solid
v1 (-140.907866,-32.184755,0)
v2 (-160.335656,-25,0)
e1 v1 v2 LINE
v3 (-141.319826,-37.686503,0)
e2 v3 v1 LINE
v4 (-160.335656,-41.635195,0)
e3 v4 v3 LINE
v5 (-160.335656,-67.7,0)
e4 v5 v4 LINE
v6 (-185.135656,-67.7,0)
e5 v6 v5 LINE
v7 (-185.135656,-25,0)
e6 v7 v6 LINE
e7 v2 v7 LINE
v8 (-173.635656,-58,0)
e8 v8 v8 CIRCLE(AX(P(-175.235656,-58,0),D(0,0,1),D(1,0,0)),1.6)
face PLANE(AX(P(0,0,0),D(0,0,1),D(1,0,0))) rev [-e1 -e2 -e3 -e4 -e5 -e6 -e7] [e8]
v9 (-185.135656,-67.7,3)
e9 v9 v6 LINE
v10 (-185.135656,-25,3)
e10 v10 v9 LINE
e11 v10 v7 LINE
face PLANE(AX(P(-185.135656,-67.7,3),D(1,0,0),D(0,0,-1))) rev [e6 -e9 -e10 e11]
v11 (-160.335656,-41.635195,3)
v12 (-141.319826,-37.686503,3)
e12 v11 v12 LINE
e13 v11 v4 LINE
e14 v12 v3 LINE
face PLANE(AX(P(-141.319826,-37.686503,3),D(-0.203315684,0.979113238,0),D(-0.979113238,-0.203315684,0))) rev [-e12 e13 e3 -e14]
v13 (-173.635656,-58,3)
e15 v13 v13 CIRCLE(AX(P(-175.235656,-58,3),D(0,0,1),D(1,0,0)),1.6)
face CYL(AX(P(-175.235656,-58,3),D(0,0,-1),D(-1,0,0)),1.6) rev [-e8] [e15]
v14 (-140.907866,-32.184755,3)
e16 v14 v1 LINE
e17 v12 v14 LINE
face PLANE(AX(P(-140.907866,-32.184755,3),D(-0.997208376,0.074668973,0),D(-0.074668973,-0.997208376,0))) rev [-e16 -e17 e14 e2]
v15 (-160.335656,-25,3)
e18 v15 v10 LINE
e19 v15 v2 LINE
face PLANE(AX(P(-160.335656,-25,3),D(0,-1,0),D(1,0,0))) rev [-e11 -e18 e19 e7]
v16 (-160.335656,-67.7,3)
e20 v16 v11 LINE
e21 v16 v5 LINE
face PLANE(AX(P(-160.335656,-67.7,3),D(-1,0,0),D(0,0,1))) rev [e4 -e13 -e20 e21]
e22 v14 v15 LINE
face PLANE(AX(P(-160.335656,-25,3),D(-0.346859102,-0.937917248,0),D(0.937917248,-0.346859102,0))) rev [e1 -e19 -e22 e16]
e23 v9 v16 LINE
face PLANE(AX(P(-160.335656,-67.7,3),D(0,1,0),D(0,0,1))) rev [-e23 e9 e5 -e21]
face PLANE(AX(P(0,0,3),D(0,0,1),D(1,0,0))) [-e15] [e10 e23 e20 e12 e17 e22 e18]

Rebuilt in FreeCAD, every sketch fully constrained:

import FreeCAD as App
import Part
import Sketcher


def add_polygon(sketch, points):
    """Adds a closed chain of lines whose ends are joined by coincident constraints."""
    first, n = sketch.GeometryCount, len(points)
    for a, b in zip(points, points[1:] + points[:1]):
        sketch.addGeometry(Part.LineSegment(App.Vector(*a, 0), App.Vector(*b, 0)), False)
    for i in range(n):
        sketch.addConstraint(Sketcher.Constraint("Coincident", first + i, 2, first + (i + 1) % n, 1))

doc = App.newDocument("Part")
body = doc.addObject("PartDesign::Body", "Body")

# Sketch on XY plane
sketch1 = body.newObject("Sketcher::SketchObject", "Sketch")
sketch1.AttachmentSupport = (doc.getObject("XY_Plane"), [""])
sketch1.MapMode = "FlatFace"
add_polygon(sketch1, [(-185.1, -67.7), (-160.3, -67.7), (-160.3, -41.6), (-141.3, -37.7), (-140.9, -32.2), (-160.3, -25), (-185.1, -25)])  # lines 0-6
sketch1.addGeometry(Part.Circle(App.Vector(-175.2, -58, 0), App.Vector(0, 0, 1), 1.6), False)  # 7
sketch1.addConstraint(Sketcher.Constraint("Horizontal", 0))
sketch1.addConstraint(Sketcher.Constraint("Vertical", 1))
sketch1.addConstraint(Sketcher.Constraint("Horizontal", 5))
sketch1.addConstraint(Sketcher.Constraint("Vertical", 6))
sketch1.addConstraint(Sketcher.Constraint("Vertical", 1, 2, 4, 2))
sketch1.addConstraint(Sketcher.Constraint("Diameter", 7, 3.2))
sketch1.addConstraint(Sketcher.Constraint("DistanceX", 0, 1, 0, 2, 24.8))
sketch1.addConstraint(Sketcher.Constraint("DistanceY", 6, 2, 6, 1, 42.7))
sketch1.addConstraint(Sketcher.Constraint("DistanceY", 7, 3, -1, 1, 58.0))
sketch1.addConstraint(Sketcher.Constraint("DistanceY", 4, 2, -1, 1, 25.0))
sketch1.addConstraint(Sketcher.Constraint("DistanceX", 7, 3, 0, 2, 14.9))
sketch1.addConstraint(Sketcher.Constraint("Distance", 2, 19.421481))
sketch1.addConstraint(Sketcher.Constraint("Distance", 3, 5.51715))
sketch1.addConstraint(Sketcher.Constraint("DistanceY", 1, 1, 1, 2, 26.064805))
sketch1.addConstraint(Sketcher.Constraint("DistanceX", 1, 2, 2, 2, 19.01583))
sketch1.addConstraint(Sketcher.Constraint("DistanceX", 2, 2, 3, 2, 0.41196))
sketch1.addConstraint(Sketcher.Constraint("DistanceX", 7, 3, -1, 1, 175.235656))
pad1 = body.newObject("PartDesign::Pad", "Pad")
pad1.Profile = sketch1
pad1.Length = 3

doc.recompute()
